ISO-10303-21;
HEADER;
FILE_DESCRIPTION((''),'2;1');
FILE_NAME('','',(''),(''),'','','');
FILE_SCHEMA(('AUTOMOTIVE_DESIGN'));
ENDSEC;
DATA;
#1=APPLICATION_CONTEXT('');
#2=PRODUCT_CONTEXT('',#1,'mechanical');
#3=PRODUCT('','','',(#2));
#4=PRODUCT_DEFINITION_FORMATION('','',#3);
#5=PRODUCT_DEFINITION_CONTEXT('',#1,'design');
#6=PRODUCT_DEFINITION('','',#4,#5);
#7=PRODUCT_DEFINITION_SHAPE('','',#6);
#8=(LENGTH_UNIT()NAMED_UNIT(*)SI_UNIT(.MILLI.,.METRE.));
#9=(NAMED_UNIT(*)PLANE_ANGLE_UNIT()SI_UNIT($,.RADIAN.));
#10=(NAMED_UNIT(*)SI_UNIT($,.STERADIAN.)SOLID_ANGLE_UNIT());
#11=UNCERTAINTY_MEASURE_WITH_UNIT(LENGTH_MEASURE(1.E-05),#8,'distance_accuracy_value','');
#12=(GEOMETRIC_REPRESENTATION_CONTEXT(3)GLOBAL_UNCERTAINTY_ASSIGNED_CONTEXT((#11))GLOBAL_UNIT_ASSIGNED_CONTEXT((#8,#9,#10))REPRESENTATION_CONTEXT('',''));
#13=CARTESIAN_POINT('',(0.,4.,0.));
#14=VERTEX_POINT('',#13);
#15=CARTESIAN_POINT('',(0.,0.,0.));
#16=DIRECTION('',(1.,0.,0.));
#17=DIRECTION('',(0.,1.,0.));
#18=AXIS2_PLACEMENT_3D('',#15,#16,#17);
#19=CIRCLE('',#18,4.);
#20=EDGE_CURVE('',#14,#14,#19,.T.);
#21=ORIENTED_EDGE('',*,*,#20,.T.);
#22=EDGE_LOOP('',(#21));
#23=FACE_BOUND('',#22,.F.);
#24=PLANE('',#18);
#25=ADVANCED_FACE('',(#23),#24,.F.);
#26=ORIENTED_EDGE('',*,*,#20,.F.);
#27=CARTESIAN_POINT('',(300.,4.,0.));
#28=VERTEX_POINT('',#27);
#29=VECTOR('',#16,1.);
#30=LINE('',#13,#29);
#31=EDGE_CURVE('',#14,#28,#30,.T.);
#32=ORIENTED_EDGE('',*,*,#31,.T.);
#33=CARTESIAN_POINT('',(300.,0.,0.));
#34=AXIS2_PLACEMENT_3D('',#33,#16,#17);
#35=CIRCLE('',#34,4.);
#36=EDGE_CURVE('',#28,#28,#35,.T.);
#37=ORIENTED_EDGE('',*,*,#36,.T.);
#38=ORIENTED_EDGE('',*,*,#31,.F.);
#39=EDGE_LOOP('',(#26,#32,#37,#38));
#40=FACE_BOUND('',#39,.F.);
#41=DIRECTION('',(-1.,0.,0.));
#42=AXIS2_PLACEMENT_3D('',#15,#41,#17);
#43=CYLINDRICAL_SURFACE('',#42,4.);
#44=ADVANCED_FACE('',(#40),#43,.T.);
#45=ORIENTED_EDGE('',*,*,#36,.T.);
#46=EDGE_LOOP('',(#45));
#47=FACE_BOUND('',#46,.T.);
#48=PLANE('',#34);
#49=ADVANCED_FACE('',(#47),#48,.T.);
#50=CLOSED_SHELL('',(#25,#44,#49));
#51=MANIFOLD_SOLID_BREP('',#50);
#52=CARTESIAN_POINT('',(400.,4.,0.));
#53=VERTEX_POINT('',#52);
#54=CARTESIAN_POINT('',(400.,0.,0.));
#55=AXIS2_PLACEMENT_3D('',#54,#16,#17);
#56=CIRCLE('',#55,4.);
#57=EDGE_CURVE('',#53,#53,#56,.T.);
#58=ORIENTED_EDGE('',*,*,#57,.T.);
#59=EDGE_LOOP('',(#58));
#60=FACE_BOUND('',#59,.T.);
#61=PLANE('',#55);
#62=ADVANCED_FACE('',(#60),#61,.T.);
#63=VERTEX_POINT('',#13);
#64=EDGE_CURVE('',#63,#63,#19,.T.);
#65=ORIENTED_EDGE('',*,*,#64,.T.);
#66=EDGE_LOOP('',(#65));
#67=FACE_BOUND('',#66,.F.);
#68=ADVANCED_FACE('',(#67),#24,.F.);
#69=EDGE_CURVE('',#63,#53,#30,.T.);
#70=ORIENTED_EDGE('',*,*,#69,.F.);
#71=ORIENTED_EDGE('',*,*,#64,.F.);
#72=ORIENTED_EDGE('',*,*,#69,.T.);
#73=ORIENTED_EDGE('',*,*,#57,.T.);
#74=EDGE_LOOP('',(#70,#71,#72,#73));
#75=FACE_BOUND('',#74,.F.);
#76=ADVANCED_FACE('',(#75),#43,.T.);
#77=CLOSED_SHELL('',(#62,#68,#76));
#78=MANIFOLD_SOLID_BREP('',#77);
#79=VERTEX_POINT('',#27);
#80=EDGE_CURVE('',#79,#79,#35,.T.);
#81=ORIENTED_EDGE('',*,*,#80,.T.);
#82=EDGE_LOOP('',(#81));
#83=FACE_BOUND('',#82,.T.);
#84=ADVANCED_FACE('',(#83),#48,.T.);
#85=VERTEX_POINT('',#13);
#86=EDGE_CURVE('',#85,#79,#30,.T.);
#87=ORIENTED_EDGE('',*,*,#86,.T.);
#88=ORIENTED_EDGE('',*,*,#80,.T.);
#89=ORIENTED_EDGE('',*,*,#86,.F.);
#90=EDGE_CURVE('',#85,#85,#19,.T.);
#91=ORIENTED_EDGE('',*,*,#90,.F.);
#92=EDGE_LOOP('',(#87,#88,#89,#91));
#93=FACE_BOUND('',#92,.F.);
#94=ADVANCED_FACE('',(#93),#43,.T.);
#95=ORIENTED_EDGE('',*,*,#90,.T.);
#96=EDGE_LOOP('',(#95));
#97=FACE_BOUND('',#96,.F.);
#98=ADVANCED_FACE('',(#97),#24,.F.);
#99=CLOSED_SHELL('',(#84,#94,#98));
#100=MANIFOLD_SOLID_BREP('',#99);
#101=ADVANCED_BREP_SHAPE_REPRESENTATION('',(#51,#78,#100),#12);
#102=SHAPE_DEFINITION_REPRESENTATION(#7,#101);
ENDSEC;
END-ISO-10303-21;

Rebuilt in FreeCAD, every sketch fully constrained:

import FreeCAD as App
import Part
import Sketcher

V = App.Vector
Q = App.Units.Quantity

doc = App.newDocument("Part")
body = doc.addObject("PartDesign::Body", "Body")

# Sketch on YZ plane
sketch1 = body.newObject("Sketcher::SketchObject", "Sketch")
sketch1.AttachmentSupport = (doc.getObject("YZ_Plane"), [""])
sketch1.MapMode = "FlatFace"
sketch1.addGeometry(Part.Circle(V(0, 0, 0), V(0, 0, 1), 4), False)
sketch1.addConstraint([
    Sketcher.Constraint("Coincident", 0, 3, -1, 1),
    Sketcher.Constraint("Diameter", 0, Q("8 mm")),
])
pad1 = body.newObject("PartDesign::Pad", "Pad")
pad1.Profile = sketch1
pad1.Length = 300
body2 = doc.addObject("PartDesign::Body", "Body001")

# Sketch on YZ plane
sketch2 = body2.newObject("Sketcher::SketchObject", "Sketch001")
sketch2.AttachmentSupport = (doc.getObject("YZ_Plane001"), [""])
sketch2.MapMode = "FlatFace"
sketch2.addGeometry(Part.Circle(V(0, 0, 0), V(0, 0, 1), 4), False)
sketch2.addConstraint([
    Sketcher.Constraint("Coincident", 0, 3, -1, 1),
    Sketcher.Constraint("Diameter", 0, Q("8 mm")),
])
pad2 = body2.newObject("PartDesign::Pad", "Pad001")
pad2.Profile = sketch2
pad2.Length = 400
body3 = doc.addObject("PartDesign::Body", "Body002")

# Sketch on YZ plane
sketch3 = body3.newObject("Sketcher::SketchObject", "Sketch002")
sketch3.AttachmentSupport = (doc.getObject("YZ_Plane002"), [""])
sketch3.MapMode = "FlatFace"
sketch3.addGeometry(Part.Circle(V(0, 0, 0), V(0, 0, 1), 4), False)
sketch3.addConstraint([
    Sketcher.Constraint("Coincident", 0, 3, -1, 1),
    Sketcher.Constraint("Diameter", 0, Q("8 mm")),
])
pad3 = body3.newObject("PartDesign::Pad", "Pad002")
pad3.Profile = sketch3
pad3.Length = 300

doc.recompute()
